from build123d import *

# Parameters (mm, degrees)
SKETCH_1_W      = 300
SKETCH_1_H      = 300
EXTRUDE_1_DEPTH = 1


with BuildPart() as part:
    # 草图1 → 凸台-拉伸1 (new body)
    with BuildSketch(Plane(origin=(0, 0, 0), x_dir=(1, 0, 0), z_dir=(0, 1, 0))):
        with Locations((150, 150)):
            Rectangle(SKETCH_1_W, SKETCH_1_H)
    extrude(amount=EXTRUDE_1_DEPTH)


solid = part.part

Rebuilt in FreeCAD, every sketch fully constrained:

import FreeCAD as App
import Part
import Sketcher

V = App.Vector
Q = App.Units.Quantity

doc = App.newDocument("Part")
body = doc.addObject("PartDesign::Body", "Body")

# Sketch on XZ plane
sketch1 = body.newObject("Sketcher::SketchObject", "Sketch")
sketch1.AttachmentSupport = (doc.getObject("XZ_Plane"), [""])
sketch1.MapMode = "FlatFace"
sketch1.addGeometry(Part.LineSegment(V(0, -300, 0), V(0, 0, 0)), False)
sketch1.addGeometry(Part.LineSegment(V(0, 0, 0), V(300, 0, 0)), False)
sketch1.addGeometry(Part.LineSegment(V(300, 0, 0), V(300, -300, 0)), False)
sketch1.addGeometry(Part.LineSegment(V(300, -300, 0), V(0, -300, 0)), False)
sketch1.addConstraint(Sketcher.Constraint("Coincident", 0, 2, 1, 1))
sketch1.addConstraint(Sketcher.Constraint("Coincident", 1, 2, 2, 1))
sketch1.addConstraint(Sketcher.Constraint("Coincident", 2, 2, 3, 1))
sketch1.addConstraint(Sketcher.Constraint("Coincident", 3, 2, 0, 1))
sketch1.addConstraint(Sketcher.Constraint("Vertical", 0))
sketch1.addConstraint(Sketcher.Constraint("Horizontal", 1))
sketch1.addConstraint(Sketcher.Constraint("Vertical", 2))
sketch1.addConstraint(Sketcher.Constraint("Horizontal", 3))
sketch1.addConstraint(Sketcher.Constraint("Coincident", 0, 2, -1, 1))
sketch1.addConstraint(Sketcher.Constraint("Equal", 3, 0))
sketch1.addConstraint(Sketcher.Constraint("DistanceX", 1, 1, 1, 2, Q("300 mm")))
pad1 = body.newObject("PartDesign::Pad", "Pad")
pad1.Profile = sketch1
pad1.Length = 1
pad1.Reversed = True

doc.recompute()
